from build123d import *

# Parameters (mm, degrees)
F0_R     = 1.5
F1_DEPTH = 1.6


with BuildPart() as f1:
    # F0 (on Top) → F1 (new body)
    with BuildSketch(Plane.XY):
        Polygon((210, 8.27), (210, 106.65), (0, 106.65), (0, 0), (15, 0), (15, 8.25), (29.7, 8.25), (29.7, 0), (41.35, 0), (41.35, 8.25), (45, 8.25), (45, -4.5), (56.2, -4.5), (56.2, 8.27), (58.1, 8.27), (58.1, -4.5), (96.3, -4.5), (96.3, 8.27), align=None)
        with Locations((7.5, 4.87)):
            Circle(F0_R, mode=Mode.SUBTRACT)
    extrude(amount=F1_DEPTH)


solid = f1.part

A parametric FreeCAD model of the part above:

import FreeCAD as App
import Part
import Sketcher
from FreeCAD import Vector
Q = App.Units.Quantity

doc = App.newDocument("Part")
params = doc.addObject("Spreadsheet::Sheet", "Params")
for row, (alias, value) in enumerate([
    ("sketch1_diameter", "3 mm"),
    ("sketch1_width", "210 mm"),
    ("sketch1_width2", "15 mm"),
    ("sketch1_width3", "14.7 mm"),
    ("sketch1_width4", "11.2 mm"),
    ("pad1_length", "1.6 mm"),
], start=1):
    params.set(f"A{row}", alias)
    params.set(f"B{row}", "=" + value)
    params.setAlias(f"B{row}", alias)

body = doc.addObject("PartDesign::Body", "Body")

# Sketch on XY plane
sketch1 = body.newObject("Sketcher::SketchObject", "Sketch")
sketch1.AttachmentSupport = (doc.getObject("XY_Plane"), [""])
sketch1.MapMode = "FlatFace"
sketch1.addGeometry(Part.LineSegment(Vector(210, 8.3, 0), Vector(210, 106.7, 0)), False)
sketch1.addGeometry(Part.LineSegment(Vector(210, 106.7, 0), Vector(0, 106.7, 0)), False)
sketch1.addGeometry(Part.LineSegment(Vector(0, 106.7, 0), Vector(0, 0, 0)), False)
sketch1.addGeometry(Part.LineSegment(Vector(0, 0, 0), Vector(15, 0, 0)), False)
sketch1.addGeometry(Part.LineSegment(Vector(15, 0, 0), Vector(15, 8.2, 0)), False)
sketch1.addGeometry(Part.LineSegment(Vector(15, 8.2, 0), Vector(29.7, 8.2, 0)), False)
sketch1.addGeometry(Part.LineSegment(Vector(29.7, 8.2, 0), Vector(29.7, 0, 0)), False)
sketch1.addGeometry(Part.LineSegment(Vector(29.7, 0, 0), Vector(41.4, 0, 0)), False)
sketch1.addGeometry(Part.LineSegment(Vector(41.4, 0, 0), Vector(41.4, 8.2, 0)), False)
sketch1.addGeometry(Part.LineSegment(Vector(41.4, 8.2, 0), Vector(45, 8.2, 0)), False)
sketch1.addGeometry(Part.LineSegment(Vector(45, 8.2, 0), Vector(45, -4.5, 0)), False)
sketch1.addGeometry(Part.LineSegment(Vector(45, -4.5, 0), Vector(56.2, -4.5, 0)), False)
sketch1.addGeometry(Part.LineSegment(Vector(56.2, -4.5, 0), Vector(56.2, 8.3, 0)), False)
sketch1.addGeometry(Part.LineSegment(Vector(56.2, 8.3, 0), Vector(58.1, 8.3, 0)), False)
sketch1.addGeometry(Part.LineSegment(Vector(58.1, 8.3, 0), Vector(58.1, -4.5, 0)), False)
sketch1.addGeometry(Part.LineSegment(Vector(58.1, -4.5, 0), Vector(96.3, -4.5, 0)), False)
sketch1.addGeometry(Part.LineSegment(Vector(96.3, -4.5, 0), Vector(96.3, 8.3, 0)), False)
sketch1.addGeometry(Part.LineSegment(Vector(96.3, 8.3, 0), Vector(210, 8.3, 0)), False)
sketch1.addGeometry(Part.Circle(Vector(7.5, 4.9, 0), Vector(0, 0, 1), 1.5), False)
sketch1.addConstraint(Sketcher.Constraint("Coincident", 0, 2, 1, 1))
sketch1.addConstraint(Sketcher.Constraint("Coincident", 1, 2, 2, 1))
sketch1.addConstraint(Sketcher.Constraint("Coincident", 2, 2, 3, 1))
sketch1.addConstraint(Sketcher.Constraint("Coincident", 3, 2, 4, 1))
sketch1.addConstraint(Sketcher.Constraint("Coincident", 4, 2, 5, 1))
sketch1.addConstraint(Sketcher.Constraint("Coincident", 5, 2, 6, 1))
sketch1.addConstraint(Sketcher.Constraint("Coincident", 6, 2, 7, 1))
sketch1.addConstraint(Sketcher.Constraint("Coincident", 7, 2, 8, 1))
sketch1.addConstraint(Sketcher.Constraint("Coincident", 8, 2, 9, 1))
sketch1.addConstraint(Sketcher.Constraint("Coincident", 9, 2, 10, 1))
sketch1.addConstraint(Sketcher.Constraint("Coincident", 10, 2, 11, 1))
sketch1.addConstraint(Sketcher.Constraint("Coincident", 11, 2, 12, 1))
sketch1.addConstraint(Sketcher.Constraint("Coincident", 12, 2, 13, 1))
sketch1.addConstraint(Sketcher.Constraint("Coincident", 13, 2, 14, 1))
sketch1.addConstraint(Sketcher.Constraint("Coincident", 14, 2, 15, 1))
sketch1.addConstraint(Sketcher.Constraint("Coincident", 15, 2, 16, 1))
sketch1.addConstraint(Sketcher.Constraint("Coincident", 16, 2, 17, 1))
sketch1.addConstraint(Sketcher.Constraint("Coincident", 17, 2, 0, 1))
sketch1.addConstraint(Sketcher.Constraint("Vertical", 0))
sketch1.addConstraint(Sketcher.Constraint("Horizontal", 1))
sketch1.addConstraint(Sketcher.Constraint("Vertical", 2))
sketch1.addConstraint(Sketcher.Constraint("Horizontal", 3))
sketch1.addConstraint(Sketcher.Constraint("Vertical", 4))
sketch1.addConstraint(Sketcher.Constraint("Horizontal", 5))
sketch1.addConstraint(Sketcher.Constraint("Vertical", 6))
sketch1.addConstraint(Sketcher.Constraint("Horizontal", 7))
sketch1.addConstraint(Sketcher.Constraint("Vertical", 8))
sketch1.addConstraint(Sketcher.Constraint("Horizontal", 9))
sketch1.addConstraint(Sketcher.Constraint("Vertical", 10))
sketch1.addConstraint(Sketcher.Constraint("Horizontal", 11))
sketch1.addConstraint(Sketcher.Constraint("Vertical", 12))
sketch1.addConstraint(Sketcher.Constraint("Horizontal", 13))
sketch1.addConstraint(Sketcher.Constraint("Vertical", 14))
sketch1.addConstraint(Sketcher.Constraint("Horizontal", 15))
sketch1.addConstraint(Sketcher.Constraint("Vertical", 16))
sketch1.addConstraint(Sketcher.Constraint("Horizontal", 17))
sketch1.addConstraint(Sketcher.Constraint("Coincident", 2, 2, -1, 1))
sketch1.addConstraint(Sketcher.Constraint("PointOnObject", 6, 2, -1))
sketch1.addConstraint(Sketcher.Constraint("Horizontal", 5, 2, 8, 2))
sketch1.addConstraint(Sketcher.Constraint("Horizontal", 11, 2, 14, 2))
sketch1.addConstraint(Sketcher.Constraint("Horizontal", 13, 2, 16, 2))
sketch1.addConstraint(Sketcher.Constraint("Diameter", 18, Q("3 mm")))
sketch1.addConstraint(Sketcher.Constraint("DistanceX", 1, 2, 1, 1, Q("210 mm")))
sketch1.addConstraint(Sketcher.Constraint("DistanceX", 3, 1, 3, 2, Q("15 mm")))
sketch1.addConstraint(Sketcher.Constraint("DistanceX", 5, 1, 5, 2, Q("14.7 mm")))
sketch1.addConstraint(Sketcher.Constraint("DistanceX", 11, 1, 11, 2, Q("11.2 mm")))
sketch1.addConstraint(Sketcher.Constraint("DistanceX", 13, 1, 13, 2, Q("1.9 mm")))
sketch1.addConstraint(Sketcher.Constraint("DistanceX", 15, 1, 15, 2, Q("38.2 mm")))
sketch1.addConstraint(Sketcher.Constraint("DistanceX", 17, 1, 17, 2, Q("113.7 mm")))
sketch1.addConstraint(Sketcher.Constraint("DistanceX", 7, 1, 7, 2, Q("11.65 mm")))
sketch1.addConstraint(Sketcher.Constraint("DistanceY", 0, 1, 0, 2, Q("98.38 mm")))
sketch1.addConstraint(Sketcher.Constraint("DistanceY", 2, 2, 2, 1, Q("106.65 mm")))
sketch1.addConstraint(Sketcher.Constraint("DistanceY", 4, 1, 4, 2, Q("8.25 mm")))
sketch1.addConstraint(Sketcher.Constraint("DistanceY", 10, 2, 10, 1, Q("12.75 mm")))
sketch1.addConstraint(Sketcher.Constraint("DistanceX", -1, 1, 18, 3, Q("7.5 mm")))
sketch1.addConstraint(Sketcher.Constraint("DistanceY", -1, 1, 18, 3, Q("4.87 mm")))
sketch1.setExpression("Constraints[41]", "Params.sketch1_diameter")
sketch1.setExpression("Constraints[42]", "Params.sketch1_width")
sketch1.setExpression("Constraints[43]", "Params.sketch1_width2")
sketch1.setExpression("Constraints[44]", "Params.sketch1_width3")
sketch1.setExpression("Constraints[45]", "Params.sketch1_width4")
pad1 = body.newObject("PartDesign::Pad", "Pad")
pad1.Profile = sketch1
pad1.setExpression("Length", "Params.pad1_length")

doc.recompute()
